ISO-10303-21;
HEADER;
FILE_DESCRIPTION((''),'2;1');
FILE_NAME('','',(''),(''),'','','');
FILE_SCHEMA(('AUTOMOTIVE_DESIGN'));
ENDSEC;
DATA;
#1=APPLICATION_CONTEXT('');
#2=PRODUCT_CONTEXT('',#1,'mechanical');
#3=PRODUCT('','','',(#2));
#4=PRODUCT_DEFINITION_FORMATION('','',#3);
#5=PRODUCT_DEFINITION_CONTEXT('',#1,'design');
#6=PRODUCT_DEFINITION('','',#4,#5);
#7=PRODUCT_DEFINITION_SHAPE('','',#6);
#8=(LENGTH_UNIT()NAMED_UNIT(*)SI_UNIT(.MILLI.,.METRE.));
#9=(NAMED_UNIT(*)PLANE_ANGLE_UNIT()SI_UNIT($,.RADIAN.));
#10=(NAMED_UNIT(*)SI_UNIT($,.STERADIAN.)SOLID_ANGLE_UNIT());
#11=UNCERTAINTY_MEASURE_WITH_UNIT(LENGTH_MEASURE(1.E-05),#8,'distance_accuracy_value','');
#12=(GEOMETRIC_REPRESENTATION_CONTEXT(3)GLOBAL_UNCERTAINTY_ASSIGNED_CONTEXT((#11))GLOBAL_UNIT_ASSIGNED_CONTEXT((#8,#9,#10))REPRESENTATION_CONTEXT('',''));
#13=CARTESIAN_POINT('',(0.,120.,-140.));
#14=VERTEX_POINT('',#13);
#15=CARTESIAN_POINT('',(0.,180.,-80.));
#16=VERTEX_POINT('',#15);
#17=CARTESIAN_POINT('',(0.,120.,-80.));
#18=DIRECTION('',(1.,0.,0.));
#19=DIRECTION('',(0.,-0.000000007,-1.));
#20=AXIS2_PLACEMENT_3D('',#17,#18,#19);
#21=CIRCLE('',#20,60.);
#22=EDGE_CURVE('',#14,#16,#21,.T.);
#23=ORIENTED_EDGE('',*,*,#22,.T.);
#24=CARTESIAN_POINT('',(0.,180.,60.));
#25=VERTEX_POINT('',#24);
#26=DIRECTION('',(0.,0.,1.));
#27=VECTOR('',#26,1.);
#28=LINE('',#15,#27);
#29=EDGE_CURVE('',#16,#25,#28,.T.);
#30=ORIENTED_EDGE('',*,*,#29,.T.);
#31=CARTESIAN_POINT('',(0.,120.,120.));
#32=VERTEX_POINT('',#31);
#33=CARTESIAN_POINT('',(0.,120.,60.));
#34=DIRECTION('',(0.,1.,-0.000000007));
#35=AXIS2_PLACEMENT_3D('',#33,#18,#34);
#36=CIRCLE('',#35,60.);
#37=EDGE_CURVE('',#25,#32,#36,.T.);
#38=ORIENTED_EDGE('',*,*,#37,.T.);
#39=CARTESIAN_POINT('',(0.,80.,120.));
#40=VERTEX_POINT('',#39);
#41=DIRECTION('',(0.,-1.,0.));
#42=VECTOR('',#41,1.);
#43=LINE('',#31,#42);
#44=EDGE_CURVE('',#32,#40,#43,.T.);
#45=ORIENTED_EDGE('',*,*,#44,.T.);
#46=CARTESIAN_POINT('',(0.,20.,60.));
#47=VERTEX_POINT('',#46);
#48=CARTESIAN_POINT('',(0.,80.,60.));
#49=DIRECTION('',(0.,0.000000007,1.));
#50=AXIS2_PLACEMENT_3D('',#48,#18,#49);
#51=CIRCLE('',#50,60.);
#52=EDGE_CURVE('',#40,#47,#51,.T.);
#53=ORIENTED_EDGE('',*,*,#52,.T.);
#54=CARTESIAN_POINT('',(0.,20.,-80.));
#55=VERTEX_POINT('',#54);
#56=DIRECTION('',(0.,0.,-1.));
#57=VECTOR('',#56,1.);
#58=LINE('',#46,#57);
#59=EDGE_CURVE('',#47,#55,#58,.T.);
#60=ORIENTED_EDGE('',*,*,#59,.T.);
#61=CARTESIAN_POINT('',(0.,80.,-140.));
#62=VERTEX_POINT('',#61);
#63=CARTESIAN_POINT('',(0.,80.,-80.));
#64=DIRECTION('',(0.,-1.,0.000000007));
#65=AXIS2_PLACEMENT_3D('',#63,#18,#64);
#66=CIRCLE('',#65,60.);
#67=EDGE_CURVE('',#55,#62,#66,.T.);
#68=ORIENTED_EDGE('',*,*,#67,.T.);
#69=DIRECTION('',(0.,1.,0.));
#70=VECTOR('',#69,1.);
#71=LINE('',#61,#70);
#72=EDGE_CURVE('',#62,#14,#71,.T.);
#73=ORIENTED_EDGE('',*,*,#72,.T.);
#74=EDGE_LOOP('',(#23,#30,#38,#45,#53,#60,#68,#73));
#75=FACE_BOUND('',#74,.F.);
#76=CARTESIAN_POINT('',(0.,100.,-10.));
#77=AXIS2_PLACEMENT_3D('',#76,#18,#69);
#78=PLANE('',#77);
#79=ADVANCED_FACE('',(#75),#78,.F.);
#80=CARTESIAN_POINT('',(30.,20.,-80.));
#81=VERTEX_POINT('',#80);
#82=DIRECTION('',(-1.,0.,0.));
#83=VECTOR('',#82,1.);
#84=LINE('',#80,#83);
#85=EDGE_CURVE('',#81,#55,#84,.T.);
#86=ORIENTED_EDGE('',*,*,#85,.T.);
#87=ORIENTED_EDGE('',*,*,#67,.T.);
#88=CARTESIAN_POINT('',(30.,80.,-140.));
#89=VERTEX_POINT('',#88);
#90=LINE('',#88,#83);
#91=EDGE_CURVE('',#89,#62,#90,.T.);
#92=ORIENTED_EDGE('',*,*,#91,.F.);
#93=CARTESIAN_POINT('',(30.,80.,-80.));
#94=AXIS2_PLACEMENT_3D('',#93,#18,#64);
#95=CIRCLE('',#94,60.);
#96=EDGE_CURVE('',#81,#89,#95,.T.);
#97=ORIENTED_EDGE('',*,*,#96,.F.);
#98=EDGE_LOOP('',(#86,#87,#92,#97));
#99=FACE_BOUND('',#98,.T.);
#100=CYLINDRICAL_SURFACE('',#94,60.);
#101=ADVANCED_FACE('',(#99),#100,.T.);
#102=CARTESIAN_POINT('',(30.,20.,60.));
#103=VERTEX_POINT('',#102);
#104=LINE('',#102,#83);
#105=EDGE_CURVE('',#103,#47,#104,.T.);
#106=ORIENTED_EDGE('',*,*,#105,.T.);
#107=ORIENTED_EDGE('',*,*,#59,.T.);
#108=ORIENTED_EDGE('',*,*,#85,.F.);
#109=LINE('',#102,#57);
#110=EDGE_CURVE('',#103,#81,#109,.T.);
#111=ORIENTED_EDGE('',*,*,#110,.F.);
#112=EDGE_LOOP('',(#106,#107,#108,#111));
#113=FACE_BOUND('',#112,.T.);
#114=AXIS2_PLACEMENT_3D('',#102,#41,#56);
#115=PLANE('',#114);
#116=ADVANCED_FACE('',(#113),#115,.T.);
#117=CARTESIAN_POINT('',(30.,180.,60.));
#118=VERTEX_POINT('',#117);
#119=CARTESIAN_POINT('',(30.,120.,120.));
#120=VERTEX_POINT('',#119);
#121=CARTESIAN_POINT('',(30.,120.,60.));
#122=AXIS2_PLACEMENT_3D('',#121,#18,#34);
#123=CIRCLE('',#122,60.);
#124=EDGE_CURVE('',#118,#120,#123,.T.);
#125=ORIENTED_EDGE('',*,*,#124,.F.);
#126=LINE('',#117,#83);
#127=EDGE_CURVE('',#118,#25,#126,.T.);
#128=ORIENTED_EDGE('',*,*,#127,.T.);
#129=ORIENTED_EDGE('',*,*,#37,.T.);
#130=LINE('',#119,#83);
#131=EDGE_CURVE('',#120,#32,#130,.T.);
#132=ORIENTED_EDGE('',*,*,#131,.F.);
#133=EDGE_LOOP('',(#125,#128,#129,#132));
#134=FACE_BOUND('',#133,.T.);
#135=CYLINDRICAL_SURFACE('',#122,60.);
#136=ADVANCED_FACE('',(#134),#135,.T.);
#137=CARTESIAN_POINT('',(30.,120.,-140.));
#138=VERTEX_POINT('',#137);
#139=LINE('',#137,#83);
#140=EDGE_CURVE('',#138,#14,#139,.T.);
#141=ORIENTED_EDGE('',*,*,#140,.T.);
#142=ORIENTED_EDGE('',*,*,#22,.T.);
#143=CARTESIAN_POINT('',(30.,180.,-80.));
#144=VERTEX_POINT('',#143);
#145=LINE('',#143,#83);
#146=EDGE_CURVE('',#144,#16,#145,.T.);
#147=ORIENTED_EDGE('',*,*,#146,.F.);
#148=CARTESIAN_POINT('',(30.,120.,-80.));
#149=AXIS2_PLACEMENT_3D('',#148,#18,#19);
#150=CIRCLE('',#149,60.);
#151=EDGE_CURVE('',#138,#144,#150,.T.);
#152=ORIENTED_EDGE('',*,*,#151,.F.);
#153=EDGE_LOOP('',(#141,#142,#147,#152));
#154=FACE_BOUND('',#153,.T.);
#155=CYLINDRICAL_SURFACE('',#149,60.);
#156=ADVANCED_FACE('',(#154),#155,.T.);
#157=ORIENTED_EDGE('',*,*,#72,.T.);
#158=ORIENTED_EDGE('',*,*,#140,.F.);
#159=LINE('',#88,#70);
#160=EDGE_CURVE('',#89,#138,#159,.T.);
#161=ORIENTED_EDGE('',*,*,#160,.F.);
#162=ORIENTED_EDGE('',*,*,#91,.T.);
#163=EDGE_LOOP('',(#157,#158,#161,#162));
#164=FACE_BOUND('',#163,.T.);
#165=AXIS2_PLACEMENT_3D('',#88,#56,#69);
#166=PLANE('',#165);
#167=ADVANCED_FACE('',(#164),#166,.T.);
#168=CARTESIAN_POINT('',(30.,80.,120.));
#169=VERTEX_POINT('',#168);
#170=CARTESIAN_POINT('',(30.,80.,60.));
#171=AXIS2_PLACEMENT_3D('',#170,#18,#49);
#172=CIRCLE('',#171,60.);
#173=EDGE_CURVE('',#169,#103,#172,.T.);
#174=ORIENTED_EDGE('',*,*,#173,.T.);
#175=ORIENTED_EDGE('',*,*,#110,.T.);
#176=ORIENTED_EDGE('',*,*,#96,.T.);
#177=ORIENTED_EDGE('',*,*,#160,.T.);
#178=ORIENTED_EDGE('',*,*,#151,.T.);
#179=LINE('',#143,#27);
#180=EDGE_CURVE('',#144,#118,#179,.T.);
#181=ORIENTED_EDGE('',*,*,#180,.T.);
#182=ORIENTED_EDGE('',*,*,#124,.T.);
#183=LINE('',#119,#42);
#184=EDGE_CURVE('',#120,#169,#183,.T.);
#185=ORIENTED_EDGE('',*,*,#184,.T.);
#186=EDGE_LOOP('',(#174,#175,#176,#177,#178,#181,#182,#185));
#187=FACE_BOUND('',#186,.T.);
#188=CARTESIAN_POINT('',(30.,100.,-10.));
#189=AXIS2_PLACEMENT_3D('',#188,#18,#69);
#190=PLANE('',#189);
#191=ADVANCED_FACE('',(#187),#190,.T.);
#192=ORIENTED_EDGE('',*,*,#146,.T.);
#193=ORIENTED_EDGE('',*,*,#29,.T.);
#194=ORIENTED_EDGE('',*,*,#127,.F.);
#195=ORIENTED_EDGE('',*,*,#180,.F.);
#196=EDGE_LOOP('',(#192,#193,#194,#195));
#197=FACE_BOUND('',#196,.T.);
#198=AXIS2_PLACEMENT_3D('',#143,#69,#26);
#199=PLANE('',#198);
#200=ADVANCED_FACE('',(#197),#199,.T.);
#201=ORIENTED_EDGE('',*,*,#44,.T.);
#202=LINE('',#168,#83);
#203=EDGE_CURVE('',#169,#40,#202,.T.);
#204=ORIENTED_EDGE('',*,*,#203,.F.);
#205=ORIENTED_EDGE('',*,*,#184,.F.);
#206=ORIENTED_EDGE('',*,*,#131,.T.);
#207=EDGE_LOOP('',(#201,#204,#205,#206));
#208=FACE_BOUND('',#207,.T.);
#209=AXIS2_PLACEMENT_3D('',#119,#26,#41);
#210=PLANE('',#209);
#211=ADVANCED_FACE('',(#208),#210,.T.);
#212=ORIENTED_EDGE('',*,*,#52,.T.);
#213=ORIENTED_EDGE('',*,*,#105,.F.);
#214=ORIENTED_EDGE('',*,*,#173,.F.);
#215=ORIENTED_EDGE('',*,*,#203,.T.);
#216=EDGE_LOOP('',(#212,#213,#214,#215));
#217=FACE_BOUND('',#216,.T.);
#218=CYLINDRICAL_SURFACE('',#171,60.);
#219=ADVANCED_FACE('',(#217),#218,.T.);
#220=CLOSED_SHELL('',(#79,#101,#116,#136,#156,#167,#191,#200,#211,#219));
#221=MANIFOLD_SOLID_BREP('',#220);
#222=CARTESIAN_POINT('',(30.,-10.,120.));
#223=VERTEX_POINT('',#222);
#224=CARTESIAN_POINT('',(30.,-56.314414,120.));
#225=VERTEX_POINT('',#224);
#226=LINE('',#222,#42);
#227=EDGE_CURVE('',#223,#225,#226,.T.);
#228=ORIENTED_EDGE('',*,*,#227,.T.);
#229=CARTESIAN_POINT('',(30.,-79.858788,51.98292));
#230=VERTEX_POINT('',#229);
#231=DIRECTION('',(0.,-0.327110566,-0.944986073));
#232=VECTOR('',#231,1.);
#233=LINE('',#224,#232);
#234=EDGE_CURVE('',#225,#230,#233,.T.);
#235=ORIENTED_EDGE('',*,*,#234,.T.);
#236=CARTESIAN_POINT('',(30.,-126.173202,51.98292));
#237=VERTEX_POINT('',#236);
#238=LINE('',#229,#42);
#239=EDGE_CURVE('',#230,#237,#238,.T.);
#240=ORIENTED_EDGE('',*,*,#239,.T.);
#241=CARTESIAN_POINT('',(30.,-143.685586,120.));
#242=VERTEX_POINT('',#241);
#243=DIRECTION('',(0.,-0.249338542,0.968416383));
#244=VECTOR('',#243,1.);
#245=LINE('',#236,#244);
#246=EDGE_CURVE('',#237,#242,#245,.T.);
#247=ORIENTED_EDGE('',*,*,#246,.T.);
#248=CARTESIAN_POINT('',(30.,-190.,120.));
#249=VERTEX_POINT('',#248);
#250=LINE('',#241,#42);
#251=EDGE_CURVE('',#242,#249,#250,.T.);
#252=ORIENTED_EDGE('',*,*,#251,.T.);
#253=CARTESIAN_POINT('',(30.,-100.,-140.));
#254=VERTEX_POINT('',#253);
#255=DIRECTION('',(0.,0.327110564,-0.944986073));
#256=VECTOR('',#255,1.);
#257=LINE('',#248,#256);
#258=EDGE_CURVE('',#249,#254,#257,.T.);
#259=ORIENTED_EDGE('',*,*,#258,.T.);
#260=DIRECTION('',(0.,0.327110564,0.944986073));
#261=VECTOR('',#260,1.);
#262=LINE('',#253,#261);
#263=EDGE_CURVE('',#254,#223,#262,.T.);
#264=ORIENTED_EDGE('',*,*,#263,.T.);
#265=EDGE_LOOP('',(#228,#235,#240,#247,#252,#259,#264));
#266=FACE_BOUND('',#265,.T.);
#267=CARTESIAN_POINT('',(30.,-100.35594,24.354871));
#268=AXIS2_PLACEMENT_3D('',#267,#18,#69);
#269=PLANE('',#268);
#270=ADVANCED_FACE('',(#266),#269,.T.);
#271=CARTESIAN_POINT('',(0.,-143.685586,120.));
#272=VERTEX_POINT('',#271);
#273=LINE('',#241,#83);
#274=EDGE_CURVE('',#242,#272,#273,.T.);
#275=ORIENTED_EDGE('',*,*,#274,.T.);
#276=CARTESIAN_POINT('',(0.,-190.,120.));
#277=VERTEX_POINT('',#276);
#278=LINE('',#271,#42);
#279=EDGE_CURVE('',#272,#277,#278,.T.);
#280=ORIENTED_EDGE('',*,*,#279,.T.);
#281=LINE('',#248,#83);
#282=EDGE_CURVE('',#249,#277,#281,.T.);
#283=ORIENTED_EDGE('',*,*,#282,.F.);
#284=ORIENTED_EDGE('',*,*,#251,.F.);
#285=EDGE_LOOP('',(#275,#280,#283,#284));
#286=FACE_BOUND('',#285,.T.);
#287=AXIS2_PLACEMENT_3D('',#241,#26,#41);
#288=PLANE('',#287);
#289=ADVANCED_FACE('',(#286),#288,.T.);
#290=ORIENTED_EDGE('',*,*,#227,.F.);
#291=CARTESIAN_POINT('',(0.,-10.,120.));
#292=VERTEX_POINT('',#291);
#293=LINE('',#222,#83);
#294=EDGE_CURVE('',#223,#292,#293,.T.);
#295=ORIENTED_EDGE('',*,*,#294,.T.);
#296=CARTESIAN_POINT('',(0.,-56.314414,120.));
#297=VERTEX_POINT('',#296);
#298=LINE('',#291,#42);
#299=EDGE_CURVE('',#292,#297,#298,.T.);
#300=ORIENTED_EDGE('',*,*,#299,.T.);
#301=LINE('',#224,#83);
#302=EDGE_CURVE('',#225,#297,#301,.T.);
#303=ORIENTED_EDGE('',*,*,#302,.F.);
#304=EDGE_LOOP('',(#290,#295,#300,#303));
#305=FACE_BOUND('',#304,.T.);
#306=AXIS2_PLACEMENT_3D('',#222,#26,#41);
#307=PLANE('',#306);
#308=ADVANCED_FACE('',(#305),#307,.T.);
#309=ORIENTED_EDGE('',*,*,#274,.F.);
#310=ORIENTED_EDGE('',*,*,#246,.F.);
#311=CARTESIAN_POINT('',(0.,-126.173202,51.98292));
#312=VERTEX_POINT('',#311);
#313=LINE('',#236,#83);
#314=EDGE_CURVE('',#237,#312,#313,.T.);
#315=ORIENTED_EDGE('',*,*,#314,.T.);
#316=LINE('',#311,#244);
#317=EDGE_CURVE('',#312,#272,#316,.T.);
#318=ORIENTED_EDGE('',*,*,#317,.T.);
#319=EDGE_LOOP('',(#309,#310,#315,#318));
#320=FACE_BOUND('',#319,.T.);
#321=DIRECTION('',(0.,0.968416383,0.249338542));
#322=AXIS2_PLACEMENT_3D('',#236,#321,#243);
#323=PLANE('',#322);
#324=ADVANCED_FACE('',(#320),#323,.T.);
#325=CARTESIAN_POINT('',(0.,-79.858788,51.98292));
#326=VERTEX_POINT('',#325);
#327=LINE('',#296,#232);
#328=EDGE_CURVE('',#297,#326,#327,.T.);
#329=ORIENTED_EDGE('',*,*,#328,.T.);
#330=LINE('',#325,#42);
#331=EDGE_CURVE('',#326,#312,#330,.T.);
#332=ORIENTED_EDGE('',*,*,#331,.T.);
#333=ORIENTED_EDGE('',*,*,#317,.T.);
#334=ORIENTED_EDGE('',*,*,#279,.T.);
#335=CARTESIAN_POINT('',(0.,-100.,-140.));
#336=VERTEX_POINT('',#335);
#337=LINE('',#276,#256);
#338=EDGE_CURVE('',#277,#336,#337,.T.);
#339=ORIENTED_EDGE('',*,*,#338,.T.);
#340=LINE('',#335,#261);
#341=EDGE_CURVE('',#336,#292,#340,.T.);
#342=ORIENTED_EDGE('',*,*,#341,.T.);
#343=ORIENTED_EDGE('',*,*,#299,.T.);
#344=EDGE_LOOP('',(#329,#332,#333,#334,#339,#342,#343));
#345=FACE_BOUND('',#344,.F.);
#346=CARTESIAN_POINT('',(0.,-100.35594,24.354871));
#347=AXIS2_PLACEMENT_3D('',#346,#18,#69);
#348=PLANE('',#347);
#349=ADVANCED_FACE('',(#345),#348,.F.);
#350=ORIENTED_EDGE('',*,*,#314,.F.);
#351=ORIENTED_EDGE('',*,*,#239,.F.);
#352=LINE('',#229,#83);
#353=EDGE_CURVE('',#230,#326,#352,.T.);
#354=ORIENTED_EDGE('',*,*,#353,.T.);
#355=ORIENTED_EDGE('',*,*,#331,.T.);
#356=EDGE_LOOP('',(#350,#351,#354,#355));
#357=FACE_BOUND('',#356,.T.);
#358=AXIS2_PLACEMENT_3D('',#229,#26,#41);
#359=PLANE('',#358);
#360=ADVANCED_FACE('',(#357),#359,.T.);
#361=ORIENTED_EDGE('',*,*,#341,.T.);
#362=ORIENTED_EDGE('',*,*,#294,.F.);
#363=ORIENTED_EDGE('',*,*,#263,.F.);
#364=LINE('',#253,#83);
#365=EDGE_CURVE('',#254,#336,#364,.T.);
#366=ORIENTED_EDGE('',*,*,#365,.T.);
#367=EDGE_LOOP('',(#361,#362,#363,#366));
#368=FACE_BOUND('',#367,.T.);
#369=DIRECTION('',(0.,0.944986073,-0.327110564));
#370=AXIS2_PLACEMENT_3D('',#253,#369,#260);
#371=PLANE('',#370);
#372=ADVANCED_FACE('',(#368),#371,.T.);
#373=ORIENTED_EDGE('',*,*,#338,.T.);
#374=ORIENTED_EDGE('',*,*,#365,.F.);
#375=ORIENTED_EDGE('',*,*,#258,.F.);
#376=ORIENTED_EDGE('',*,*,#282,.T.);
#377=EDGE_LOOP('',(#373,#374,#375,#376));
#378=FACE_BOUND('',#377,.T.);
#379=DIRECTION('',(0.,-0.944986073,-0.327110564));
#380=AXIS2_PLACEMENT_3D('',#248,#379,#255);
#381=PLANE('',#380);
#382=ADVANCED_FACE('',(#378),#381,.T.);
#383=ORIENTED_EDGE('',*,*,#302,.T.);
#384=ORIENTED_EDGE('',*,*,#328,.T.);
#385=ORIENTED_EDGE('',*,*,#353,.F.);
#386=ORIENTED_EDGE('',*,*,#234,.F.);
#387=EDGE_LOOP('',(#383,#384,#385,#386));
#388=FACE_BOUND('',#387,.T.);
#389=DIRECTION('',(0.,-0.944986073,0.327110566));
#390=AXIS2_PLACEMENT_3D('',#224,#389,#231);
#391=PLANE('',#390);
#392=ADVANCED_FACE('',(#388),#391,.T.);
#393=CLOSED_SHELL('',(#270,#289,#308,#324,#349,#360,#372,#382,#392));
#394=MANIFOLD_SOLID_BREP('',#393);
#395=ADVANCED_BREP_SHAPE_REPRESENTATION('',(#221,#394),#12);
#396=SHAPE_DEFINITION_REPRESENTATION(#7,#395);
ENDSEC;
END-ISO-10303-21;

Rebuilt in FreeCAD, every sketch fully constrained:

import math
import FreeCAD as App
import Part
import Sketcher

V = App.Vector
Q = App.Units.Quantity

doc = App.newDocument("Part")
body = doc.addObject("PartDesign::Body", "Body")
body.AllowCompound = True

# Sketch on YZ plane
sketch1 = doc.addObject("Sketcher::SketchObject", "Sketch")
body.addObject(sketch1)
sketch1.AttachmentSupport = (doc.YZ_Plane, [""])
sketch1.MapMode = "FlatFace"
sketch1.AttachmentOffset = App.Placement(V(0, 0, 30), App.Rotation())
sketch1.addGeometry([
    Part.LineSegment(V(-144, 120, 0), V(-190, 120, 0)),  # 0
    Part.LineSegment(V(-190, 120, 0), V(-100, -140, 0)),  # 1
    Part.LineSegment(V(-100, -140, 0), V(-10, 120, 0)),  # 2
    Part.LineSegment(V(-10, 120, 0), V(-56, 120, 0)),  # 3
    Part.LineSegment(V(-56, 120, 0), V(-80, 52, 0)),  # 4
    Part.LineSegment(V(-80, 52, 0), V(-126, 52, 0)),  # 5
    Part.LineSegment(V(-126, 52, 0), V(-144, 120, 0)),  # 6
    Part.LineSegment(V(120, 120, 0), V(80, 120, 0)),  # 7
    Part.ArcOfCircle(Part.Circle(V(80, 60, 0), V(0, 0, 1), 60), math.radians(90), math.radians(180)),  # 8
    Part.LineSegment(V(20, 60, 0), V(20, -80, 0)),  # 9
    Part.ArcOfCircle(Part.Circle(V(80, -80, 0), V(0, 0, 1), 60), math.radians(180), math.radians(270)),  # 10
    Part.LineSegment(V(80, -140, 0), V(120, -140, 0)),  # 11
    Part.ArcOfCircle(Part.Circle(V(120, -80, 0), V(0, 0, 1), 60), math.radians(-90), math.radians(0)),  # 12
    Part.LineSegment(V(180, -80, 0), V(180, 60, 0)),  # 13
    Part.ArcOfCircle(Part.Circle(V(120, 60, 0), V(0, 0, 1), 60), math.radians(0), math.radians(90)),  # 14
], False)
sketch1.addConstraint([
    Sketcher.Constraint("Coincident", 0, 2, 1, 1),
    Sketcher.Constraint("Coincident", 1, 2, 2, 1),
    Sketcher.Constraint("Coincident", 2, 2, 3, 1),
    Sketcher.Constraint("Coincident", 3, 2, 4, 1),
    Sketcher.Constraint("Coincident", 4, 2, 5, 1),
    Sketcher.Constraint("Coincident", 5, 2, 6, 1),
    Sketcher.Constraint("Coincident", 6, 2, 0, 1),
    Sketcher.Constraint("Tangent", 7, 2, 8, 1),
    Sketcher.Constraint("Tangent", 8, 2, 9, 1),
    Sketcher.Constraint("Tangent", 9, 2, 10, 1),
    Sketcher.Constraint("Tangent", 10, 2, 11, 1),
    Sketcher.Constraint("Tangent", 11, 2, 12, 1),
    Sketcher.Constraint("Tangent", 12, 2, 13, 1),
    Sketcher.Constraint("Tangent", 13, 2, 14, 1),
    Sketcher.Constraint("Tangent", 14, 2, 7, 1),
    Sketcher.Constraint("Horizontal", 0),
    Sketcher.Constraint("Horizontal", 3),
    Sketcher.Constraint("Horizontal", 5),
    Sketcher.Constraint("Horizontal", 7),
    Sketcher.Constraint("Vertical", 9),
    Sketcher.Constraint("Horizontal", 11),
    Sketcher.Constraint("Vertical", 13),
    Sketcher.Constraint("Equal", 8, 10),
    Sketcher.Constraint("Equal", 10, 12),
    Sketcher.Constraint("Equal", 12, 14),
    Sketcher.Constraint("Parallel", 2, 4),
    Sketcher.Constraint("Horizontal", 0, 2, 2, 2),
    Sketcher.Constraint("Horizontal", 6, 2, 7, 2),
    Sketcher.Constraint("Horizontal", 1, 2, 10, 2),
    Sketcher.Constraint("Equal", 0, 3),
    Sketcher.Constraint("Equal", 3, 5),
    Sketcher.Constraint("Equal", 1, 2),
    Sketcher.Constraint("Radius", 8, Q("60 mm")),
    Sketcher.Constraint("DistanceX", 7, 2, 7, 1, Q("40 mm")),
    Sketcher.Constraint("DistanceY", 9, 2, 9, 1, Q("140 mm")),
    Sketcher.Constraint("DistanceX", -1, 1, 8, 3, Q("80 mm")),
    Sketcher.Constraint("DistanceY", -1, 1, 8, 3, Q("60 mm")),
    Sketcher.Constraint("DistanceX", 0, 2, -1, 1, Q("190 mm")),
    Sketcher.Constraint("DistanceX", 1, 2, -1, 1, Q("100 mm")),
    Sketcher.Constraint("DistanceX", 0, 2, 0, 1, Q("46.314414 mm")),
    Sketcher.Constraint("DistanceX", 4, 2, -1, 1, Q("79.858788 mm")),
])
pad1 = doc.addObject("PartDesign::Pad", "Pad")
body.addObject(pad1)
pad1.Profile = sketch1
pad1.Length = 30
pad1.Reversed = True

doc.recompute()
